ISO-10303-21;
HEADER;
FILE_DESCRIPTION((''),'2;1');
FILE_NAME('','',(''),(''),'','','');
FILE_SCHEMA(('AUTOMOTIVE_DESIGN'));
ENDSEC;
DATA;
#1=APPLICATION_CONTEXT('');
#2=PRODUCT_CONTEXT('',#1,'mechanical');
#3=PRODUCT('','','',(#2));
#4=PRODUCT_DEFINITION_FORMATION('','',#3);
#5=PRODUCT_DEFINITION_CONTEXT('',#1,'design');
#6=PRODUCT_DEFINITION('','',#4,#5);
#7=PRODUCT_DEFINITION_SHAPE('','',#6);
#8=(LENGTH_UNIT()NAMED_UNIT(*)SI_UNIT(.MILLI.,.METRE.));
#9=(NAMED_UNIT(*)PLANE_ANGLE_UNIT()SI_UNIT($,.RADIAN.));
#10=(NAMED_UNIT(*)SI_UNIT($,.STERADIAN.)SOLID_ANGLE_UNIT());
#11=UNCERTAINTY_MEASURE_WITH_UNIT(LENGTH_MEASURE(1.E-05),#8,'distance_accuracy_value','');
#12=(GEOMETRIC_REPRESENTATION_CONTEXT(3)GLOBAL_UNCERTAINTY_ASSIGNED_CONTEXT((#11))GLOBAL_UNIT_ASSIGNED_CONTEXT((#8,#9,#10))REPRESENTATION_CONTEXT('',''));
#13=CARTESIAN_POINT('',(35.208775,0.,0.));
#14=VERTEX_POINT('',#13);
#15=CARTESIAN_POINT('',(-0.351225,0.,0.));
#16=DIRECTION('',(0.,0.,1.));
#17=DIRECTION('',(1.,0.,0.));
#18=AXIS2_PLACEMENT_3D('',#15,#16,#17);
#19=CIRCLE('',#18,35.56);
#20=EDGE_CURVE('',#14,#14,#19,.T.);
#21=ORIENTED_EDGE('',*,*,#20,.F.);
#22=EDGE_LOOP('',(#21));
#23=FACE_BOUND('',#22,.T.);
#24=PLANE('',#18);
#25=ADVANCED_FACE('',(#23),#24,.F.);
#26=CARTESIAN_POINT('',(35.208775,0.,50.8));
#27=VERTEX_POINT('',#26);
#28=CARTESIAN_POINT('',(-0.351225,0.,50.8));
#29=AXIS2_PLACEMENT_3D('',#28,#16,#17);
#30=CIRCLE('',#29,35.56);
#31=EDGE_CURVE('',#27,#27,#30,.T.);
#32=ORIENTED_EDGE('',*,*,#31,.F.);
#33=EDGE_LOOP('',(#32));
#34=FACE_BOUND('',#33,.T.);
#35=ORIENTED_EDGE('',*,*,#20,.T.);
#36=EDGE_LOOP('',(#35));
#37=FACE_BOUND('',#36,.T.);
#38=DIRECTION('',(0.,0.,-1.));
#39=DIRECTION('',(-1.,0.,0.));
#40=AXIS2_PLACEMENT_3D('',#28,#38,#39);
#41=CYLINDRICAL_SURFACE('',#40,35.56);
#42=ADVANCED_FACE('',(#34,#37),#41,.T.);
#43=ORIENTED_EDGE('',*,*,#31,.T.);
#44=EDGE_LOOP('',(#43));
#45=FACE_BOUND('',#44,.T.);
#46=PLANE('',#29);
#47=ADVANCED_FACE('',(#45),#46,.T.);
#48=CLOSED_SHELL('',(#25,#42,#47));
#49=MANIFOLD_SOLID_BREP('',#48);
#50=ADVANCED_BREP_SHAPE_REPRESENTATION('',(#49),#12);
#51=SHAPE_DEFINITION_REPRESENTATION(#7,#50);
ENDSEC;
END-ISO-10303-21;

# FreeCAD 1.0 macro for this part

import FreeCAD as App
import Part
import Sketcher
Q = App.Units.Quantity

doc = App.newDocument("Part")
body = doc.addObject("PartDesign::Body", "Body")

# Sketch on XY plane
sketch1 = body.newObject("Sketcher::SketchObject", "Sketch")
sketch1.AttachmentSupport = (doc.getObject("XY_Plane"), [""])
sketch1.MapMode = "FlatFace"
sketch1.addGeometry(Part.Circle(App.Vector(0, 0, 0), App.Vector(0, 0, 1), 36), False)
sketch1.addConstraint([
    Sketcher.Constraint("PointOnObject", 0, 3, -1),
    Sketcher.Constraint("Diameter", 0, Q("2.8 in")),
    Sketcher.Constraint("DistanceX", 0, 3, -1, 1, 0.351225),
])
pad1 = body.newObject("PartDesign::Pad", "Pad")
pad1.Profile = sketch1
pad1.Length = Q("2 in")

doc.recompute()
